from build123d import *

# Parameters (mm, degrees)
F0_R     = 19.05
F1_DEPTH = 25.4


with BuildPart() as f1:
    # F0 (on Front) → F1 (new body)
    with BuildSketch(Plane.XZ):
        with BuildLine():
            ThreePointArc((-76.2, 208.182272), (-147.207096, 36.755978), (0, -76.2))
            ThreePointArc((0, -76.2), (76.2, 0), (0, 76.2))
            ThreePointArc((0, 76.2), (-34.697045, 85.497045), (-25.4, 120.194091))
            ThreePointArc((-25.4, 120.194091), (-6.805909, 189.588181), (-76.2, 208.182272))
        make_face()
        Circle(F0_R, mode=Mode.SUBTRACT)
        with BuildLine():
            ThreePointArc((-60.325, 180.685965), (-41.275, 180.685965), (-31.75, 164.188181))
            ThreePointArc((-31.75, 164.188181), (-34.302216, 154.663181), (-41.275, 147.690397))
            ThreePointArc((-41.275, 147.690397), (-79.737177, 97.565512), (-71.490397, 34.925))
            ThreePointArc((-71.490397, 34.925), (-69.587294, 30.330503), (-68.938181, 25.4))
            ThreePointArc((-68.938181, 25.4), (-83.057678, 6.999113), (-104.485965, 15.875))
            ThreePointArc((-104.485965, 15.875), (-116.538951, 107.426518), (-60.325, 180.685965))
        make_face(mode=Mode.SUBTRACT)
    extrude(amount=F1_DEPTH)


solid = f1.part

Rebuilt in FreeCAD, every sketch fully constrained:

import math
import FreeCAD as App
import Part
import Sketcher

V = App.Vector
Q = App.Units.Quantity

doc = App.newDocument("Part")
body = doc.addObject("PartDesign::Body", "Body")

sketch1 = doc.addObject("Sketcher::SketchObject", "Sketch")
body.addObject(sketch1)
sketch1.AttachmentSupport = (doc.XZ_Plane, [""])
sketch1.MapMode = "FlatFace"
sketch1.addGeometry([
    Part.ArcOfCircle(Part.Circle(V(0, 76.2, 0), V(0, 0, 1), 152.4), math.radians(120), math.radians(270)),
    Part.ArcOfCircle(Part.Circle(V(0, 0, 0), V(0, 0, 1), 76.2), math.radians(-90), math.radians(90)),
    Part.ArcOfCircle(Part.Circle(V(-12.7, 98.197046, 0), V(0, 0, 1), 25.4), math.radians(120), math.radians(299.999999)),
    Part.ArcOfCircle(Part.Circle(V(-50.8, 164.188182, 0), V(0, 0, 1), 50.8), math.radians(-60), math.radians(120)),
    Part.Circle(V(0, 0, 0), V(0, 0, 1), 19.05),
    Part.ArcOfCircle(Part.Circle(V(0, 76.2, 0), V(0, 0, 1), 120.65), math.radians(120), math.radians(210)),
    Part.ArcOfCircle(Part.Circle(V(-50.8, 164.188181, 0), V(0, 0, 1), 19.05), math.radians(0), math.radians(120)),
    Part.ArcOfCircle(Part.Circle(V(-50.8, 164.188181, 0), V(0, 0, 1), 19.05), math.radians(-60), math.radians(0)),
    Part.ArcOfCircle(Part.Circle(V(0, 76.2, 0), V(0, 0, 1), 82.55), math.radians(120), math.radians(210)),
    Part.ArcOfCircle(Part.Circle(V(-87.98818, 25.4, 0), V(0, 0, 1), 19.049999), math.radians(-0.000001), math.radians(30)),
    Part.ArcOfCircle(Part.Circle(V(-87.988181, 25.4, 0), V(0, 0, 1), 19.05), math.radians(-150), math.radians(0)),
], False)
sketch1.addConstraint([
    Sketcher.Constraint("Tangent", 0, 2, 1, 1),
    Sketcher.Constraint("Coincident", 1, 2, 2, 2),
    Sketcher.Constraint("Tangent", 2, 1, 3, 1),
    Sketcher.Constraint("Tangent", 3, 2, 0, 1),
    Sketcher.Constraint("Tangent", 5, 1, 6, 2),
    Sketcher.Constraint("Tangent", 6, 1, 7, 2),
    Sketcher.Constraint("Tangent", 7, 1, 8, 1),
    Sketcher.Constraint("Tangent", 8, 2, 9, 2),
    Sketcher.Constraint("Tangent", 9, 1, 10, 2),
    Sketcher.Constraint("Tangent", 10, 1, 5, 2),
    Sketcher.Constraint("Coincident", 1, 3, -1, 1),
    Sketcher.Constraint("Coincident", 4, 3, -1, 1),
    Sketcher.Constraint("Coincident", 5, 3, 0, 3),
    Sketcher.Constraint("Coincident", 6, 3, 3, 3),
    Sketcher.Constraint("Coincident", 8, 3, 0, 3),
    Sketcher.Constraint("Coincident", 1, 2, 0, 3),
    Sketcher.Constraint("Equal", 4, 6),
    Sketcher.Constraint("Equal", 6, 7),
    Sketcher.Constraint("Equal", 7, 9),
    Sketcher.Constraint("PointOnObject", 0, 3, -2),
    Sketcher.Constraint("Horizontal", 7, 3, 6, 1),
    Sketcher.Constraint("Horizontal", 10, 3, 9, 1),
    Sketcher.Constraint("Radius", 0, Q("6 in")),
    Sketcher.Constraint("Radius", 2, Q("1 in")),
    Sketcher.Constraint("Diameter", 4, Q("1.5 in")),
    Sketcher.Constraint("DistanceX", 3, 3, -1, 1, Q("2 in")),
    Sketcher.Constraint("DistanceY", -1, 1, 9, 3, Q("1 in")),
    Sketcher.Constraint("DistanceX", 2, 1, -1, 1, Q("1 in")),
])
pad1 = doc.addObject("PartDesign::Pad", "Pad")
body.addObject(pad1)
pad1.Profile = sketch1
pad1.Length = Q("1 in")

doc.recompute()
